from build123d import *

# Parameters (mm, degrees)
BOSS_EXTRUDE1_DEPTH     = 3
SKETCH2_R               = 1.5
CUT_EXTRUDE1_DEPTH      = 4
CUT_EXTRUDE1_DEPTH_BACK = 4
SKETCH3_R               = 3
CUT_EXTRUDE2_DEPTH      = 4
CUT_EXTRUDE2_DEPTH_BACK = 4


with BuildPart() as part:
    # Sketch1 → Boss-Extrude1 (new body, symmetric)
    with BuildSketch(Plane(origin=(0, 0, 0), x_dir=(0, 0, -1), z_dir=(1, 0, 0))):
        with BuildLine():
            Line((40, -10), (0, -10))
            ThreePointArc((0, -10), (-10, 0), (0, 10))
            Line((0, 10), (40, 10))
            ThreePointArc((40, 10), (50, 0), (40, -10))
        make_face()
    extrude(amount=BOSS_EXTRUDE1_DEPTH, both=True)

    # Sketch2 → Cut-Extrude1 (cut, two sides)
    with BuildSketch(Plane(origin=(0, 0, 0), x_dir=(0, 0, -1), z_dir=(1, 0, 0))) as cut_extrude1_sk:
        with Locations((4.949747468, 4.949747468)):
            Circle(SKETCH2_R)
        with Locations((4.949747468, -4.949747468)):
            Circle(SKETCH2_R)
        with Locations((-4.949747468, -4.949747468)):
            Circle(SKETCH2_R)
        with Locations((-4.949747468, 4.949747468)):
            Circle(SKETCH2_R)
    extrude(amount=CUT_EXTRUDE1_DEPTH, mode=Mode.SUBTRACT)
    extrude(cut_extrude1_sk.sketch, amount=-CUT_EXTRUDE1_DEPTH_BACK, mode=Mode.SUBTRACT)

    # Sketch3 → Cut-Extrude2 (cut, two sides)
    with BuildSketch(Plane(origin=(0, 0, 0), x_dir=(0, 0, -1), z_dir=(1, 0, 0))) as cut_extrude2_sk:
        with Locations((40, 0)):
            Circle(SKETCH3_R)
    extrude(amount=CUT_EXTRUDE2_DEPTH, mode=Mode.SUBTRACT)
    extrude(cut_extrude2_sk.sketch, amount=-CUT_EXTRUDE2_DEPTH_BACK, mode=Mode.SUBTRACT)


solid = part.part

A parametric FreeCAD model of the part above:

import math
import FreeCAD as App
import Part
import Sketcher

V = App.Vector

doc = App.newDocument("Part")
body = doc.addObject("PartDesign::Body", "Body")

# Sketch on YZ plane
sketch1 = body.newObject("Sketcher::SketchObject", "Sketch")
sketch1.AttachmentSupport = (doc.getObject("YZ_Plane"), [""])
sketch1.MapMode = "FlatFace"
sketch1.addGeometry([
    Part.LineSegment(V(-10, 0, 0), V(-10, -40, 0)),
    Part.ArcOfCircle(Part.Circle(V(0, -40, 0), V(0, 0, 1), 10), math.radians(180), math.radians(360)),
    Part.LineSegment(V(10, -40, 0), V(10, 0, 0)),
    Part.ArcOfCircle(Part.Circle(V(0, 0, 0), V(0, 0, 1), 10), math.radians(0), math.radians(180)),
], False)
sketch1.addConstraint([
    Sketcher.Constraint("Tangent", 0, 2, 1, 1),
    Sketcher.Constraint("Tangent", 1, 2, 2, 1),
    Sketcher.Constraint("Tangent", 2, 2, 3, 1),
    Sketcher.Constraint("Tangent", 3, 2, 0, 1),
    Sketcher.Constraint("Vertical", 0),
    Sketcher.Constraint("Vertical", 2),
    Sketcher.Constraint("Coincident", 3, 3, -1, 1),
    Sketcher.Constraint("Radius", 1, 10.0),
    Sketcher.Constraint("DistanceY", 0, 2, 0, 1, 40.0),
])
pad1 = body.newObject("PartDesign::Pad", "Pad")
pad1.Profile = sketch1
pad1.Length = 6
pad1.Midplane = True

# Sketch on YZ plane
sketch2 = body.newObject("Sketcher::SketchObject", "Sketch001")
sketch2.AttachmentSupport = (doc.getObject("YZ_Plane"), [""])
sketch2.MapMode = "FlatFace"
sketch2.addGeometry([
    Part.Circle(V(4.9, -4.9, 0), V(0, 0, 1), 1.5),
    Part.Circle(V(-4.9, -4.9, 0), V(0, 0, 1), 1.5),
    Part.Circle(V(-4.9, 4.9, 0), V(0, 0, 1), 1.5),
    Part.Circle(V(4.9, 4.9, 0), V(0, 0, 1), 1.5),
], False)
sketch2.addConstraint([
    Sketcher.Constraint("Equal", 0, 1),
    Sketcher.Constraint("Equal", 1, 2),
    Sketcher.Constraint("Equal", 2, 3),
    Sketcher.Constraint("Symmetric", 0, 3, 2, 3, -1, 1),
    Sketcher.Constraint("Symmetric", 1, 3, 3, 3, -1, 1),
    Sketcher.Constraint("Symmetric", 0, 3, 1, 3, -2),
    Sketcher.Constraint("Diameter", 0, 3.0),
    Sketcher.Constraint("DistanceX", -1, 1, 0, 3, 4.949747),
    Sketcher.Constraint("DistanceY", 0, 3, -1, 1, 4.949747),
])
pocket1 = body.newObject("PartDesign::Pocket", "Pocket")
pocket1.Profile = sketch2
pocket1.Type = "ThroughAll"
pocket1.Midplane = True

# Sketch on YZ plane
sketch3 = body.newObject("Sketcher::SketchObject", "Sketch002")
sketch3.AttachmentSupport = (doc.getObject("YZ_Plane"), [""])
sketch3.MapMode = "FlatFace"
sketch3.addGeometry(Part.Circle(V(0, -40, 0), V(0, 0, 1), 3), False)
sketch3.addConstraint([
    Sketcher.Constraint("PointOnObject", 0, 3, -2),
    Sketcher.Constraint("Diameter", 0, 6.0),
    Sketcher.Constraint("DistanceY", 0, 3, -1, 1, 40.0),
])
pocket2 = body.newObject("PartDesign::Pocket", "Pocket001")
pocket2.Profile = sketch3
pocket2.Type = "ThroughAll"
pocket2.Midplane = True

doc.recompute()
